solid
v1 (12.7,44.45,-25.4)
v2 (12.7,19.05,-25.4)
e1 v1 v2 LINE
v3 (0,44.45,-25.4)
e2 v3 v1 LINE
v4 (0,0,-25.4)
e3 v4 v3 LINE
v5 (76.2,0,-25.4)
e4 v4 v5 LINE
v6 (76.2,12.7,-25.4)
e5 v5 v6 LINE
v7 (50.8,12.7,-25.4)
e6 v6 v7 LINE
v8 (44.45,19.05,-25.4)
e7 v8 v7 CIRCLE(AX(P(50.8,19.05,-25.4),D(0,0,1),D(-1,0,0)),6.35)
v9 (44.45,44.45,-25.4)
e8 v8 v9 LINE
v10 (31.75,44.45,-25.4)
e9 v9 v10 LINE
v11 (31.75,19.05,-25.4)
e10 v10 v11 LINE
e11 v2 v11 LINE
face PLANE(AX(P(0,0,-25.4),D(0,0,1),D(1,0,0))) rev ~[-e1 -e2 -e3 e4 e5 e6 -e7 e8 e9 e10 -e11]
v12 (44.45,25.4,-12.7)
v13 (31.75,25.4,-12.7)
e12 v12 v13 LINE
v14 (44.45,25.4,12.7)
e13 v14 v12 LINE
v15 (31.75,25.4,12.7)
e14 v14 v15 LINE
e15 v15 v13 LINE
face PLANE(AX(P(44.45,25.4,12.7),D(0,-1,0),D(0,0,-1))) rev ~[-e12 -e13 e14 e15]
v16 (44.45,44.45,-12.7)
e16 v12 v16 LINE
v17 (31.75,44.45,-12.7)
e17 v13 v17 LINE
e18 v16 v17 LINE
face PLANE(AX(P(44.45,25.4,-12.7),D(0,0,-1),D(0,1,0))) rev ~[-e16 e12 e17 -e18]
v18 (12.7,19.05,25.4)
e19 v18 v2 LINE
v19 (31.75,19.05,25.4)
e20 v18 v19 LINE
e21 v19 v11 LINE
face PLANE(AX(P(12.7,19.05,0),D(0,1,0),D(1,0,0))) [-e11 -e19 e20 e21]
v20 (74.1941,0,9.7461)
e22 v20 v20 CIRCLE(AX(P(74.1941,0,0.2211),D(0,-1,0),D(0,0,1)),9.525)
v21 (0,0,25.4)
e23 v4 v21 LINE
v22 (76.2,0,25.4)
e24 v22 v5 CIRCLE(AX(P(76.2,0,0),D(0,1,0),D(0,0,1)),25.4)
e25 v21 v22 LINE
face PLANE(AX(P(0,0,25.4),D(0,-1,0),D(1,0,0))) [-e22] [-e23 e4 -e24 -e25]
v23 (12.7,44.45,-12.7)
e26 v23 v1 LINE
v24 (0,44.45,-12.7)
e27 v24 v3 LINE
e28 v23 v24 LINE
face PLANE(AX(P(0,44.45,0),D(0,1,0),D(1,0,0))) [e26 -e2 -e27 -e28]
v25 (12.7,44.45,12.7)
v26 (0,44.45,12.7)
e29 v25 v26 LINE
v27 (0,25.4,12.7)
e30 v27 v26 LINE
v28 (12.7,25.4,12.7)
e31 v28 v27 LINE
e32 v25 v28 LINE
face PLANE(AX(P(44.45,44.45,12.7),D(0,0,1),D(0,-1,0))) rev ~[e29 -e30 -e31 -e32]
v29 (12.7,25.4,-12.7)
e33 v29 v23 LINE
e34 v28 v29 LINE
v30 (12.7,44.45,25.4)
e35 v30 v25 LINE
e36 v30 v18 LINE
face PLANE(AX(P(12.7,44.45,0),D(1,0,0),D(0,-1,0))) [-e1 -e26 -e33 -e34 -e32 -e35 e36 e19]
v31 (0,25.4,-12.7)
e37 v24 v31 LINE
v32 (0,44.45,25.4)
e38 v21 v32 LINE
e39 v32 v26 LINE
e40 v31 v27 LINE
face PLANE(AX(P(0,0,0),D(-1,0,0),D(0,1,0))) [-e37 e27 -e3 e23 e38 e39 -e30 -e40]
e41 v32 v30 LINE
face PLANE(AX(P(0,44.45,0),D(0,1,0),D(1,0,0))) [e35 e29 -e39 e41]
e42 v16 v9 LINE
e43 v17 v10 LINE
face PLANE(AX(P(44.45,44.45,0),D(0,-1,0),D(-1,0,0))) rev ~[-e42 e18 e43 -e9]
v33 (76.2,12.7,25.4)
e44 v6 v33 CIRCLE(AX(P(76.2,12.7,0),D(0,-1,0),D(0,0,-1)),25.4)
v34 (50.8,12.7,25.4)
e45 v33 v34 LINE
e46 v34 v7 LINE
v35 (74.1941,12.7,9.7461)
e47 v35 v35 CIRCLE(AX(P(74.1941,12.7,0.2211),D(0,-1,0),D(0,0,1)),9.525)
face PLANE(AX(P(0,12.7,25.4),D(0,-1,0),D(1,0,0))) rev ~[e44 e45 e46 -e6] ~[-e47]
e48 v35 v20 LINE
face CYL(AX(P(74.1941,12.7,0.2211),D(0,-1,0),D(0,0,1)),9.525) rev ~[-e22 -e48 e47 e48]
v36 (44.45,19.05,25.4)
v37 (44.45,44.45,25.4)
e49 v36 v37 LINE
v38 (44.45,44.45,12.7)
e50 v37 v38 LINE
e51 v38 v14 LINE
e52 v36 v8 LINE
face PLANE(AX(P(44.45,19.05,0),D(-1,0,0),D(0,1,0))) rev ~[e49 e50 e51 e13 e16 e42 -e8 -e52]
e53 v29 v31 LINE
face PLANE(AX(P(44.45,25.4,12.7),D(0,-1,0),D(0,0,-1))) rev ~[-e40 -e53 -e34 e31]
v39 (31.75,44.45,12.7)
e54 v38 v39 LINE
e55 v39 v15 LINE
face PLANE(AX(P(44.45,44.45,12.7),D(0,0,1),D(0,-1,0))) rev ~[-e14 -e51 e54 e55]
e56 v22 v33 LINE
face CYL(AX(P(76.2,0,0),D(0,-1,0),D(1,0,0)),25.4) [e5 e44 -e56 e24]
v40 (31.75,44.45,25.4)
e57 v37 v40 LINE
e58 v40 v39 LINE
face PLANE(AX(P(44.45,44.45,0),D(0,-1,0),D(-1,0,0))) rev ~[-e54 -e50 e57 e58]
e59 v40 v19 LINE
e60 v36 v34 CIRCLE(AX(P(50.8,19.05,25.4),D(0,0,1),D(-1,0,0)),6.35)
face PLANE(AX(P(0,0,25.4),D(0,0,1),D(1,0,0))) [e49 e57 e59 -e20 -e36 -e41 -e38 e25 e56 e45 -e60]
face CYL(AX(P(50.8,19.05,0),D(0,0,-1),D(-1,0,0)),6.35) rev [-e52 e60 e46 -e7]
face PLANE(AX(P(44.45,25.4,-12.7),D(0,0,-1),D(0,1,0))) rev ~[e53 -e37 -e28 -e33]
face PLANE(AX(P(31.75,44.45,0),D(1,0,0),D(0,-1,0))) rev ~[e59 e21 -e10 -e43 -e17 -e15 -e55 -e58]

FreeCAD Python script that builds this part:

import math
import FreeCAD as App
import Part
import Sketcher
Q = App.Units.Quantity

doc = App.newDocument("Part")
body = doc.addObject("PartDesign::Body", "Body")

# Sketch on XY plane
sketch1 = body.newObject("Sketcher::SketchObject", "Sketch")
sketch1.AttachmentSupport = (doc.getObject("XY_Plane"), [""])
sketch1.MapMode = "FlatFace"
sketch1.addGeometry(Part.LineSegment(App.Vector(0, 44, 0), App.Vector(0, 0, 0)), False)
sketch1.addGeometry(Part.LineSegment(App.Vector(0, 0, 0), App.Vector(76, 0, 0)), False)
sketch1.addGeometry(Part.LineSegment(App.Vector(76, 0, 0), App.Vector(76, 13, 0)), False)
sketch1.addGeometry(Part.LineSegment(App.Vector(76, 13, 0), App.Vector(51, 13, 0)), False)
sketch1.addGeometry(Part.ArcOfCircle(Part.Circle(App.Vector(51, 19, 0), App.Vector(0, 0, 1), 6), math.radians(180), math.radians(270)), False)
sketch1.addGeometry(Part.LineSegment(App.Vector(44, 19, 0), App.Vector(44, 44, 0)), False)
sketch1.addGeometry(Part.LineSegment(App.Vector(44, 44, 0), App.Vector(32, 44, 0)), False)
sketch1.addGeometry(Part.LineSegment(App.Vector(32, 44, 0), App.Vector(32, 19, 0)), False)
sketch1.addGeometry(Part.LineSegment(App.Vector(32, 19, 0), App.Vector(13, 19, 0)), False)
sketch1.addGeometry(Part.LineSegment(App.Vector(13, 19, 0), App.Vector(13, 44, 0)), False)
sketch1.addGeometry(Part.LineSegment(App.Vector(13, 44, 0), App.Vector(0, 44, 0)), False)
sketch1.addConstraint(Sketcher.Constraint("Coincident", 0, 2, 1, 1))
sketch1.addConstraint(Sketcher.Constraint("Coincident", 1, 2, 2, 1))
sketch1.addConstraint(Sketcher.Constraint("Coincident", 2, 2, 3, 1))
sketch1.addConstraint(Sketcher.Constraint("Tangent", 3, 2, 4, 2))
sketch1.addConstraint(Sketcher.Constraint("Tangent", 4, 1, 5, 1))
sketch1.addConstraint(Sketcher.Constraint("Coincident", 5, 2, 6, 1))
sketch1.addConstraint(Sketcher.Constraint("Coincident", 6, 2, 7, 1))
sketch1.addConstraint(Sketcher.Constraint("Coincident", 7, 2, 8, 1))
sketch1.addConstraint(Sketcher.Constraint("Coincident", 8, 2, 9, 1))
sketch1.addConstraint(Sketcher.Constraint("Coincident", 9, 2, 10, 1))
sketch1.addConstraint(Sketcher.Constraint("Coincident", 10, 2, 0, 1))
sketch1.addConstraint(Sketcher.Constraint("Vertical", 0))
sketch1.addConstraint(Sketcher.Constraint("Horizontal", 1))
sketch1.addConstraint(Sketcher.Constraint("Vertical", 2))
sketch1.addConstraint(Sketcher.Constraint("Horizontal", 3))
sketch1.addConstraint(Sketcher.Constraint("Vertical", 5))
sketch1.addConstraint(Sketcher.Constraint("Horizontal", 6))
sketch1.addConstraint(Sketcher.Constraint("Vertical", 7))
sketch1.addConstraint(Sketcher.Constraint("Horizontal", 8))
sketch1.addConstraint(Sketcher.Constraint("Vertical", 9))
sketch1.addConstraint(Sketcher.Constraint("Horizontal", 10))
sketch1.addConstraint(Sketcher.Constraint("Coincident", 0, 2, -1, 1))
sketch1.addConstraint(Sketcher.Constraint("Horizontal", 4, 1, 7, 2))
sketch1.addConstraint(Sketcher.Constraint("Horizontal", 6, 2, 9, 2))
sketch1.addConstraint(Sketcher.Constraint("Equal", 6, 10))
sketch1.addConstraint(Sketcher.Constraint("Equal", 10, 2))
sketch1.addConstraint(Sketcher.Constraint("Equal", 3, 5))
sketch1.addConstraint(Sketcher.Constraint("DistanceX", 1, 1, 1, 2, Q("3 in")))
sketch1.addConstraint(Sketcher.Constraint("DistanceX", 3, 2, 3, 1, Q("1 in")))
sketch1.addConstraint(Sketcher.Constraint("Radius", 4, Q("0.25 in")))
sketch1.addConstraint(Sketcher.Constraint("DistanceX", 6, 2, 6, 1, Q("0.5 in")))
pad1 = body.newObject("PartDesign::Pad", "Pad")
pad1.Profile = sketch1
pad1.Length = Q("2 in")
pad1.Midplane = True

# Sketch on XZ plane
sketch2 = body.newObject("Sketcher::SketchObject", "Sketch001")
sketch2.AttachmentSupport = (doc.getObject("XZ_Plane"), [""])
sketch2.MapMode = "FlatFace"
sketch2.addGeometry(Part.LineSegment(App.Vector(76, 25, 0), App.Vector(76, -25, 0)), False)
sketch2.addGeometry(Part.ArcOfCircle(Part.Circle(App.Vector(76, 0, 0), App.Vector(0, 0, 1), 25), math.radians(-90), math.radians(90)), False)
sketch2.addConstraint(Sketcher.Constraint("Coincident", 0, 1, 1, 2))
sketch2.addConstraint(Sketcher.Constraint("Coincident", 1, 1, 0, 2))
sketch2.addConstraint(Sketcher.Constraint("Vertical", 0))
sketch2.addConstraint(Sketcher.Constraint("PointOnObject", 1, 3, -1))
sketch2.addConstraint(Sketcher.Constraint("Vertical", 1, 3, 0, 1))
sketch2.addConstraint(Sketcher.Constraint("Radius", 1, Q("1 in")))
sketch2.addConstraint(Sketcher.Constraint("DistanceX", -1, 1, 1, 3, Q("3 in")))
pad2 = body.newObject("PartDesign::Pad", "Pad001")
pad2.Profile = sketch2
pad2.Length = Q("0.5 in")
pad2.Reversed = True

# Sketch on XZ plane
sketch3 = body.newObject("Sketcher::SketchObject", "Sketch002")
sketch3.AttachmentSupport = (doc.getObject("XZ_Plane"), [""])
sketch3.MapMode = "FlatFace"
sketch3.AttachmentOffset = App.Placement(App.Vector(0, 0, -0.5 * 25.4), App.Rotation())
sketch3.addGeometry(Part.Circle(App.Vector(74, 0, 0), App.Vector(0, 0, 1), 10), False)
sketch3.addConstraint(Sketcher.Constraint("Diameter", 0, Q("0.75 in")))
sketch3.addConstraint(Sketcher.Constraint("DistanceY", -1, 1, 0, 3, Q("0.0087 in")))
sketch3.addConstraint(Sketcher.Constraint("DistanceX", -1, 1, 0, 3, 74.194))
doc.recompute()
hole = body.newObject("PartDesign::Hole", "Hole")
hole.Profile = sketch3
hole.ThreadType = "None"
hole.Diameter = Q("0.75 in")
hole.DepthType = "ThroughAll"
hole.Reversed = True

# Sketch on YZ plane
sketch4 = body.newObject("Sketcher::SketchObject", "Sketch003")
sketch4.AttachmentSupport = (doc.getObject("YZ_Plane"), [""])
sketch4.MapMode = "FlatFace"
sketch4.AttachmentOffset = App.Placement(App.Vector(0, 0, 1.75 * 25.4), App.Rotation())
sketch4.addGeometry(Part.LineSegment(App.Vector(44, -13, 0), App.Vector(44, 13, 0)), False)
sketch4.addGeometry(Part.LineSegment(App.Vector(44, 13, 0), App.Vector(25, 13, 0)), False)
sketch4.addGeometry(Part.LineSegment(App.Vector(25, 13, 0), App.Vector(25, -13, 0)), False)
sketch4.addGeometry(Part.LineSegment(App.Vector(25, -13, 0), App.Vector(44, -13, 0)), False)
sketch4.addConstraint(Sketcher.Constraint("Coincident", 0, 2, 1, 1))
sketch4.addConstraint(Sketcher.Constraint("Coincident", 1, 2, 2, 1))
sketch4.addConstraint(Sketcher.Constraint("Coincident", 2, 2, 3, 1))
sketch4.addConstraint(Sketcher.Constraint("Coincident", 3, 2, 0, 1))
sketch4.addConstraint(Sketcher.Constraint("Vertical", 0))
sketch4.addConstraint(Sketcher.Constraint("Horizontal", 1))
sketch4.addConstraint(Sketcher.Constraint("Vertical", 2))
sketch4.addConstraint(Sketcher.Constraint("Horizontal", 3))
sketch4.addConstraint(Sketcher.Constraint("DistanceY", 0, 1, 0, 2, Q("1 in")))
sketch4.addConstraint(Sketcher.Constraint("DistanceX", -1, 1, 1, 2, Q("1 in")))
sketch4.addConstraint(Sketcher.Constraint("DistanceX", 1, 2, 1, 1, Q("0.75 in")))
sketch4.addConstraint(Sketcher.Constraint("DistanceY", -1, 1, 0, 2, Q("0.5 in")))
pocket1 = body.newObject("PartDesign::Pocket", "Pocket")
pocket1.Profile = sketch4
pocket1.Type = "ThroughAll"

doc.recompute()
